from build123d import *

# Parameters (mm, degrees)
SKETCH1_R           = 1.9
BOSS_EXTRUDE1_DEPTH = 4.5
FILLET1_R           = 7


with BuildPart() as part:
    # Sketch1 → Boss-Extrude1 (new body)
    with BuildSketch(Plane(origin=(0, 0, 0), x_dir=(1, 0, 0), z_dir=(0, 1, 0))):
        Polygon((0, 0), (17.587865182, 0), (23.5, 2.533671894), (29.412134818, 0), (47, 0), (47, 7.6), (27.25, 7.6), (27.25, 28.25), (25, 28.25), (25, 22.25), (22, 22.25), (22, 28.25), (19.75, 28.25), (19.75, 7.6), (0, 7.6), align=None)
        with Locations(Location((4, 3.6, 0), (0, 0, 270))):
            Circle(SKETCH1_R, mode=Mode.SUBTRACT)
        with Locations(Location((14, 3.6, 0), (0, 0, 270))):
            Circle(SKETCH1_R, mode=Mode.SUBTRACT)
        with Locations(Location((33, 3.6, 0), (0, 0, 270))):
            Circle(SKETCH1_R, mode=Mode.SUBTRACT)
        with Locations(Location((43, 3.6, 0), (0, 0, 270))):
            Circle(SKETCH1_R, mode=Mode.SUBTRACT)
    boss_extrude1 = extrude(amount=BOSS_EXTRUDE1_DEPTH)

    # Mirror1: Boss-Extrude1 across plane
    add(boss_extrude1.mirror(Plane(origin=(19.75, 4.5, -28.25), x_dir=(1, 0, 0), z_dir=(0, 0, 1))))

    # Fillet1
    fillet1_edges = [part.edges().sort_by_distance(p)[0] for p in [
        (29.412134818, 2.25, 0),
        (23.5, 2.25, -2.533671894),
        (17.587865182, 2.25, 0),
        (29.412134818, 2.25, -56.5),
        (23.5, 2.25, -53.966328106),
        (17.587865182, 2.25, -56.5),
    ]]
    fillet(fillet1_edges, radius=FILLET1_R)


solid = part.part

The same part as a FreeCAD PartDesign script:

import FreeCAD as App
import Part
import Sketcher


def edges_at(feature, points):
    """Names of the edges that pass closest to the given points."""
    edges = feature.Shape.Edges
    near = lambda p: min(range(len(edges)), key=lambda i: edges[i].distToShape(Part.Vertex(*p))[0])
    return sorted({f"Edge{near(p) + 1}" for p in points})


def add_polygon(sketch, points):
    """Adds a closed chain of lines whose ends are joined by coincident constraints."""
    first, n = sketch.GeometryCount, len(points)
    for a, b in zip(points, points[1:] + points[:1]):
        sketch.addGeometry(Part.LineSegment(App.Vector(*a, 0), App.Vector(*b, 0)), False)
    for i in range(n):
        sketch.addConstraint(Sketcher.Constraint("Coincident", first + i, 2, first + (i + 1) % n, 1))

doc = App.newDocument("Part")
body = doc.addObject("PartDesign::Body", "Body")

# Sketch on XZ plane
sketch1 = body.newObject("Sketcher::SketchObject", "Sketch")
sketch1.AttachmentSupport = (doc.getObject("XZ_Plane"), [""])
sketch1.MapMode = "FlatFace"
add_polygon(sketch1, [(0, 0), (17.6, 0), (23.5, -2.5), (29.4, 0), (47, 0), (47, -7.6), (27.2, -7.6), (27.2, -28.2), (25, -28.2), (25, -22.2), (22, -22.2), (22, -28.2), (19.8, -28.2), (19.8, -7.6), (0, -7.6)])  # lines 0-14
sketch1.addGeometry(Part.Circle(App.Vector(4, -3.6, 0), App.Vector(0, 0, 1), 1.9), False)  # 15
sketch1.addGeometry(Part.Circle(App.Vector(14, -3.6, 0), App.Vector(0, 0, 1), 1.9), False)  # 16
sketch1.addGeometry(Part.Circle(App.Vector(33, -3.6, 0), App.Vector(0, 0, 1), 1.9), False)  # 17
sketch1.addGeometry(Part.Circle(App.Vector(43, -3.6, 0), App.Vector(0, 0, 1), 1.9), False)  # 18
sketch1.addConstraint([
    Sketcher.Constraint("Horizontal", 0),
    Sketcher.Constraint("Horizontal", 3),
    Sketcher.Constraint("Vertical", 4),
    Sketcher.Constraint("Horizontal", 5),
    Sketcher.Constraint("Vertical", 6),
    Sketcher.Constraint("Horizontal", 7),
    Sketcher.Constraint("Vertical", 8),
    Sketcher.Constraint("Horizontal", 9),
    Sketcher.Constraint("Vertical", 10),
    Sketcher.Constraint("Horizontal", 11),
    Sketcher.Constraint("Vertical", 12),
    Sketcher.Constraint("Horizontal", 13),
    Sketcher.Constraint("Vertical", 14),
    Sketcher.Constraint("Coincident", 14, 2, -1, 1),
    Sketcher.Constraint("Equal", 15, 16),
    Sketcher.Constraint("Equal", 16, 17),
    Sketcher.Constraint("Equal", 17, 18),
    Sketcher.Constraint("PointOnObject", 2, 2, -1),
    Sketcher.Constraint("Horizontal", 15, 3, 16, 3),
    Sketcher.Constraint("Horizontal", 16, 3, 17, 3),
    Sketcher.Constraint("Horizontal", 17, 3, 18, 3),
    Sketcher.Constraint("Horizontal", 7, 2, 10, 2),
    Sketcher.Constraint("Horizontal", 5, 2, 12, 2),
    Sketcher.Constraint("Equal", 0, 3),
    Sketcher.Constraint("Equal", 7, 11),
    Sketcher.Constraint("Equal", 5, 13),
    Sketcher.Constraint("Equal", 1, 2),
    Sketcher.Constraint("Diameter", 15, 3.8),
    Sketcher.Constraint("DistanceX", 9, 2, 9, 1, 3.0),
    Sketcher.Constraint("DistanceY", 8, 1, 8, 2, 6.0),
    Sketcher.Constraint("DistanceY", 4, 2, 4, 1, 7.6),
    Sketcher.Constraint("DistanceX", -1, 1, 15, 3, 4.0),
    Sketcher.Constraint("DistanceX", -1, 1, 16, 3, 14.0),
    Sketcher.Constraint("DistanceX", -1, 1, 17, 3, 33.0),
    Sketcher.Constraint("DistanceX", -1, 1, 18, 3, 43.0),
    Sketcher.Constraint("DistanceX", -1, 1, 3, 2, 47.0),
    Sketcher.Constraint("DistanceY", 4, 2, 18, 3, 4.0),
    Sketcher.Constraint("DistanceX", 5, 2, 5, 1, 19.75),
    Sketcher.Constraint("DistanceY", 6, 2, 6, 1, 20.65),
    Sketcher.Constraint("Distance", 1, 6.432172),
    Sketcher.Constraint("DistanceX", 0, 1, 0, 2, 17.587865),
])
pad1 = body.newObject("PartDesign::Pad", "Pad")
pad1.Profile = sketch1
pad1.Length = 4.5
pad1.Reversed = True
doc.recompute()

datumplane = body.newObject("PartDesign::Plane", "DatumPlane")
datumplane.AttachmentSupport = (doc.getObject("XY_Plane"), [""])
datumplane.MapMode = "FlatFace"
datumplane.AttachmentOffset = App.Placement(App.Vector(0, 0, -28.25), App.Rotation())
mirrored = body.newObject("PartDesign::Mirrored", "Mirrored")
mirrored.Originals = [pad1]
mirrored.MirrorPlane = (datumplane, [""])
body.Tip = mirrored
doc.recompute()

fillet = body.newObject("PartDesign::Fillet", "Fillet")
fillet.Base = (mirrored, edges_at(mirrored, [
    (29.412, 2.25, 0),
    (23.5, 2.25, -2.534),
    (17.588, 2.25, 0),
    (29.412, 2.25, -56.5),
    (23.5, 2.25, -53.966),
    (17.588, 2.25, -56.5),
]))
fillet.Radius = 7

doc.recompute()
